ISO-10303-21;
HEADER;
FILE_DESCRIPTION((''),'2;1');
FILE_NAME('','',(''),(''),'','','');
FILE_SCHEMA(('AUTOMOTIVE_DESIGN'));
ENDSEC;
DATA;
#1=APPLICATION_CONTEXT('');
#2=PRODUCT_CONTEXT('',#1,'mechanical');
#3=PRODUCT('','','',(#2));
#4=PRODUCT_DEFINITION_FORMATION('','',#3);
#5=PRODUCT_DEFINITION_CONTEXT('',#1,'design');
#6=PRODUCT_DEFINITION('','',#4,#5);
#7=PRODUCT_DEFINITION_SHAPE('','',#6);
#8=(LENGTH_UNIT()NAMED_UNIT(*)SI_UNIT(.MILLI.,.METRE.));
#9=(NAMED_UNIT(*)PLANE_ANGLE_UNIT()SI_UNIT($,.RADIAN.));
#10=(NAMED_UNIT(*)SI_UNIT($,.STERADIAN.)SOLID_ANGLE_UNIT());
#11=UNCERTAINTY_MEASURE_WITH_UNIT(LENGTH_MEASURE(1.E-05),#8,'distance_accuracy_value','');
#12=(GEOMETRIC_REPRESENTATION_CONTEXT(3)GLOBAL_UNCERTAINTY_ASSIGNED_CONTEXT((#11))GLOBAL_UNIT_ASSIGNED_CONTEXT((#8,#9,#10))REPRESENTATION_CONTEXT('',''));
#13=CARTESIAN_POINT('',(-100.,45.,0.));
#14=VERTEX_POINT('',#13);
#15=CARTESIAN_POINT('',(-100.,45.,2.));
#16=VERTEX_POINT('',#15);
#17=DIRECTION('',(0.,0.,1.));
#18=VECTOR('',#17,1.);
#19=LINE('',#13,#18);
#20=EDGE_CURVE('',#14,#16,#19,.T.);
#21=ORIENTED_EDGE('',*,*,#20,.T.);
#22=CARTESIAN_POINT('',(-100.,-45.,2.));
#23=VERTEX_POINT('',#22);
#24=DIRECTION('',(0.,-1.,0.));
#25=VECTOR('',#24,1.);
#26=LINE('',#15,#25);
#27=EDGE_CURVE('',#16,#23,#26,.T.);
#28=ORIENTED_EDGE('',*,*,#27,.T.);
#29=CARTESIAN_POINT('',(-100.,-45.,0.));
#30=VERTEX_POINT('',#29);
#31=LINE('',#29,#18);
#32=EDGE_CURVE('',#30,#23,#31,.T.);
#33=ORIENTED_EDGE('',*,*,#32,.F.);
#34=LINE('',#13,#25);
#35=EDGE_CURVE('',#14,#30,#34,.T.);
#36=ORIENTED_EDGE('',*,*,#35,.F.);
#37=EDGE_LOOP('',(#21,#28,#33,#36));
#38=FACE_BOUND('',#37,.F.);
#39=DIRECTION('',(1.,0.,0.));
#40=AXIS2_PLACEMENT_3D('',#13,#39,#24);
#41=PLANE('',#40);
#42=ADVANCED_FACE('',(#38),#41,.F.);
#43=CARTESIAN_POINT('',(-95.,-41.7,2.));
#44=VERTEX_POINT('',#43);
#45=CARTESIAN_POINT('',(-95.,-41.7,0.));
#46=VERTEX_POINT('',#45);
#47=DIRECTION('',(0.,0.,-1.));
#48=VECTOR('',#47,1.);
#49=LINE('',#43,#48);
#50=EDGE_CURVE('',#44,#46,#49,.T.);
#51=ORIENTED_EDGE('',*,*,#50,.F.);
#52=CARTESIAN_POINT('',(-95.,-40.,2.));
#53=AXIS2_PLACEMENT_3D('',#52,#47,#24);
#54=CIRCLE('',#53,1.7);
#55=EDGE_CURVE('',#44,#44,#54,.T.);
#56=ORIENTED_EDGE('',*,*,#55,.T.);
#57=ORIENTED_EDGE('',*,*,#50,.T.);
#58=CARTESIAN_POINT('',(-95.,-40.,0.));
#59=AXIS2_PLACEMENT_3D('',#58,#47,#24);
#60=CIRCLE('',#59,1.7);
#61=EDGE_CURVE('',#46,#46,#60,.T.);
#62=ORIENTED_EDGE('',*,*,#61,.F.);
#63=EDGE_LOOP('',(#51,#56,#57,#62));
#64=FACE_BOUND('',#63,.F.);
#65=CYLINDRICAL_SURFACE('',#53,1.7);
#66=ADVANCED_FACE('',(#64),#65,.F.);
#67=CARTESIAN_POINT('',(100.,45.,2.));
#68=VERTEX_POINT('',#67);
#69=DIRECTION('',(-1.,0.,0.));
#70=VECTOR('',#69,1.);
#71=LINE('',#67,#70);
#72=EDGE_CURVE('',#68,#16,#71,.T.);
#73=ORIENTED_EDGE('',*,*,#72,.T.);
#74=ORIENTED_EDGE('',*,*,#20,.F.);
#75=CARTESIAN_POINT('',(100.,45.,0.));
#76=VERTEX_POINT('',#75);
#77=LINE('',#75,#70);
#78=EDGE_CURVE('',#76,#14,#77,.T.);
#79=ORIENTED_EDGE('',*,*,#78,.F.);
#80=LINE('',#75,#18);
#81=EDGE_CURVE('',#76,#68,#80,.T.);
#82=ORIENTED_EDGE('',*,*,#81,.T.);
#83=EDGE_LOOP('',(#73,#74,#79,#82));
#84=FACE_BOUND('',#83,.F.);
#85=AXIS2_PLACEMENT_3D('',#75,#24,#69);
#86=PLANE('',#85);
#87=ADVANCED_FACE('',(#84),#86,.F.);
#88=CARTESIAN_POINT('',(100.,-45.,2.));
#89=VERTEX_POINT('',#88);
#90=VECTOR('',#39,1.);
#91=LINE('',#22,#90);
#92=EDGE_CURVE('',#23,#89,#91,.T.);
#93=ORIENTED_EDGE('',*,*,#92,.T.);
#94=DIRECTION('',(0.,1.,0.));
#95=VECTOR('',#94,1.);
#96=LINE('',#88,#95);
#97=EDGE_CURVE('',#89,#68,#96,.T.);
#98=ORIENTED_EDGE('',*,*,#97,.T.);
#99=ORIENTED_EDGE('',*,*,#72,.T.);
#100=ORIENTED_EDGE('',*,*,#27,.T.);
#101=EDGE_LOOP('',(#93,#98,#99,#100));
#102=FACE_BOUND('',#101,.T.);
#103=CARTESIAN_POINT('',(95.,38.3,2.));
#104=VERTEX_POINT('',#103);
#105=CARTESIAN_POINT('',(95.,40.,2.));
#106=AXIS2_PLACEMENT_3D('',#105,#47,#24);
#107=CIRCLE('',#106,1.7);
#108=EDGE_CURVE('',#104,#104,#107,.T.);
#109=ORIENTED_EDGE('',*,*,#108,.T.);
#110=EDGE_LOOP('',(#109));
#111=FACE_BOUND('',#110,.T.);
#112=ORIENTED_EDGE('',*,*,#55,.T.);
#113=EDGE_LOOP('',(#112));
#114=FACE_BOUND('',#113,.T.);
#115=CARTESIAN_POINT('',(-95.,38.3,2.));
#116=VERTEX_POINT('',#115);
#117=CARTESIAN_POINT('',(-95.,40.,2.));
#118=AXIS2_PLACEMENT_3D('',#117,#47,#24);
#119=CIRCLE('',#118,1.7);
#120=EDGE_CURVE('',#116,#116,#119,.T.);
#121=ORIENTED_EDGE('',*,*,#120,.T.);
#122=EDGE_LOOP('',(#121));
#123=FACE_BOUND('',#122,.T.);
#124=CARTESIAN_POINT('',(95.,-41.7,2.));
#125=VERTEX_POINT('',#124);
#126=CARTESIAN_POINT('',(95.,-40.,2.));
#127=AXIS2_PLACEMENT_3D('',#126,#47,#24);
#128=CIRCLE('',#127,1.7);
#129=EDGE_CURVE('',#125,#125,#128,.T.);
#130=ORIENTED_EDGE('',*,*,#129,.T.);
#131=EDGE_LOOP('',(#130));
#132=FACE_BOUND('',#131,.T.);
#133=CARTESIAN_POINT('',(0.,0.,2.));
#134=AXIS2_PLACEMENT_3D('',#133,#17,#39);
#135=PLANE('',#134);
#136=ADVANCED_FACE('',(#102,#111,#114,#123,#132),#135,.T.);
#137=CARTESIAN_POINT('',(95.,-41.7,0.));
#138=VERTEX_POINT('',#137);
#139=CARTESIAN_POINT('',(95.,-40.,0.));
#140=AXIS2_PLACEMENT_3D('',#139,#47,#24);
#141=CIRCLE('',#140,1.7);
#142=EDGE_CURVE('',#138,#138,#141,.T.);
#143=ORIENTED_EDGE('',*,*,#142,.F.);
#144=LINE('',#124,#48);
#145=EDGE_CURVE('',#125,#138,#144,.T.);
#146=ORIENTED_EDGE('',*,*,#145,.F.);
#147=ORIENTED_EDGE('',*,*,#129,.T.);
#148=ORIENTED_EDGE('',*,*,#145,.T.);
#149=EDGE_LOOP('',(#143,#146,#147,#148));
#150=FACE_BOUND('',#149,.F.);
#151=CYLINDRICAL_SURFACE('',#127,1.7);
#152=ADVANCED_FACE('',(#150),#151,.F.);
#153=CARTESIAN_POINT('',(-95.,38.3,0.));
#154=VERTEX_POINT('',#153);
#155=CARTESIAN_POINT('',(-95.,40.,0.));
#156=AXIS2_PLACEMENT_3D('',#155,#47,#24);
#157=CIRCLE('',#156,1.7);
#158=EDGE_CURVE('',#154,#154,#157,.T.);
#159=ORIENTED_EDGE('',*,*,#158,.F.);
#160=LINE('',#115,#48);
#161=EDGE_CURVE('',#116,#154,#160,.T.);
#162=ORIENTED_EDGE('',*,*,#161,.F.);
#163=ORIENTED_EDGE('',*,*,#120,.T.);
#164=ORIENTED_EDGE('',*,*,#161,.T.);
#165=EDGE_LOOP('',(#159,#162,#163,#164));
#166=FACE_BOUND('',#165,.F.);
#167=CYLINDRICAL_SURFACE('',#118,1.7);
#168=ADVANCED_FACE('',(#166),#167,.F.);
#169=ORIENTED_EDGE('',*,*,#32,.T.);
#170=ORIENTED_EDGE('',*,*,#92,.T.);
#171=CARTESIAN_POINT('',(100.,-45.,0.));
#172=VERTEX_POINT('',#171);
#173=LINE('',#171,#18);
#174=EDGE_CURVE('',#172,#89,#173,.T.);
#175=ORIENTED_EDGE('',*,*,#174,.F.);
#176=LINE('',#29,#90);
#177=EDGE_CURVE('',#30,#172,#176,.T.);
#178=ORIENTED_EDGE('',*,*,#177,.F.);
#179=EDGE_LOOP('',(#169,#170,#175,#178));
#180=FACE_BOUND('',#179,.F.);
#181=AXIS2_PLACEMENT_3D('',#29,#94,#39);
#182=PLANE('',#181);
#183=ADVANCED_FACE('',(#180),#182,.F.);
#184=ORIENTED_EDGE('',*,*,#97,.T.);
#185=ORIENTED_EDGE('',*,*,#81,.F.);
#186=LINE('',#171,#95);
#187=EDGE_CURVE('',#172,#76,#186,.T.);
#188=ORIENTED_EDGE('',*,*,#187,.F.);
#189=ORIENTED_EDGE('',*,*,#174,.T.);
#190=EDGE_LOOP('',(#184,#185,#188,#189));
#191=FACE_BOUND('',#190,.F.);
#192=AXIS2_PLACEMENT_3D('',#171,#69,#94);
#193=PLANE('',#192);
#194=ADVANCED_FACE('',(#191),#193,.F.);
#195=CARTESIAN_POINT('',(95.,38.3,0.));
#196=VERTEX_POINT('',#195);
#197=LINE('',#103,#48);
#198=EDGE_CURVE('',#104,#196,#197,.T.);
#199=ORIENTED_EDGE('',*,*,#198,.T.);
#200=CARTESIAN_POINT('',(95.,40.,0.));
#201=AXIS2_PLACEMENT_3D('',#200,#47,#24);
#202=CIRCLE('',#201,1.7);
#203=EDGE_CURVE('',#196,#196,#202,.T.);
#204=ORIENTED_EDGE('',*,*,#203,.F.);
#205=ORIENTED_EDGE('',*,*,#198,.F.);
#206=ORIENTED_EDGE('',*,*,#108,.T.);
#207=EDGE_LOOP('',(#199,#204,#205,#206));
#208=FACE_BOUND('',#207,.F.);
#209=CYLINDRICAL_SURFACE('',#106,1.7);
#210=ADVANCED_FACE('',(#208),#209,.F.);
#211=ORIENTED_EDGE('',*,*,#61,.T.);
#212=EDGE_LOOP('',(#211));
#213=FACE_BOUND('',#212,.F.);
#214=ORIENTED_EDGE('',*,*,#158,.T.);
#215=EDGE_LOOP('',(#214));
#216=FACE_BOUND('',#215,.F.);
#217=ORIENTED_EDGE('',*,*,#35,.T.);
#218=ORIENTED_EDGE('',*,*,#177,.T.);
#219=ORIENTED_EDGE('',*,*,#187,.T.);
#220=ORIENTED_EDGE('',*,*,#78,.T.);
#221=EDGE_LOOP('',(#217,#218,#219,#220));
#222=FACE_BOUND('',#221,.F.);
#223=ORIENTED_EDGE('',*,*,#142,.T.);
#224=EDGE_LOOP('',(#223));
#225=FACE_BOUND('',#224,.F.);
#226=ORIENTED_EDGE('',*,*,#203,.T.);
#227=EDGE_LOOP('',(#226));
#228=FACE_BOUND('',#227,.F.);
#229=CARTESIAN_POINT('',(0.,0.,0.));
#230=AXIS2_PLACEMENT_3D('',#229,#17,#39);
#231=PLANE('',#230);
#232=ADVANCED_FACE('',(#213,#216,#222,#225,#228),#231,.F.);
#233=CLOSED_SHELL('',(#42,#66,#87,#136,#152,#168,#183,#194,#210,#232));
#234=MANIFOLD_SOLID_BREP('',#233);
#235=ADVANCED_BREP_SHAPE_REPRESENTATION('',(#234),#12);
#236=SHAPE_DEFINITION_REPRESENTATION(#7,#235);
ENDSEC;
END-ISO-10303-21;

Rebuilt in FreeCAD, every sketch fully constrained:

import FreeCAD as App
import Part
import Sketcher
from FreeCAD import Vector

doc = App.newDocument("Part")
params = doc.addObject("Spreadsheet::Sheet", "Params")
for row, (alias, value) in enumerate([
    ("sketch1_width", "200 mm"),
    ("sketch1_height", "90 mm"),
    ("pad1_length", "2 mm"),
    ("sketch2_diameter", "3.4 mm"),
    ("hole_diameter", "3.4 mm"),
], start=1):
    params.set(f"A{row}", alias)
    params.set(f"B{row}", "=" + value)
    params.setAlias(f"B{row}", alias)

body = doc.addObject("PartDesign::Body", "Body")

# Sketch on XY plane
sketch1 = body.newObject("Sketcher::SketchObject", "Sketch")
sketch1.AttachmentSupport = (doc.getObject("XY_Plane"), [""])
sketch1.MapMode = "FlatFace"
sketch1.addGeometry([
    Part.LineSegment(Vector(-100, 45, 0), Vector(-100, -45, 0)),
    Part.LineSegment(Vector(-100, -45, 0), Vector(100, -45, 0)),
    Part.LineSegment(Vector(100, -45, 0), Vector(100, 45, 0)),
    Part.LineSegment(Vector(100, 45, 0), Vector(-100, 45, 0)),
], False)
sketch1.addConstraint([
    Sketcher.Constraint("Coincident", 0, 2, 1, 1),
    Sketcher.Constraint("Coincident", 1, 2, 2, 1),
    Sketcher.Constraint("Coincident", 2, 2, 3, 1),
    Sketcher.Constraint("Coincident", 3, 2, 0, 1),
    Sketcher.Constraint("Vertical", 0),
    Sketcher.Constraint("Horizontal", 1),
    Sketcher.Constraint("Vertical", 2),
    Sketcher.Constraint("Horizontal", 3),
    Sketcher.Constraint("Symmetric", 0, 2, 2, 2, -1, 1),
    Sketcher.Constraint("DistanceX", 1, 1, 1, 2, 200.0),
    Sketcher.Constraint("DistanceY", 0, 2, 0, 1, 90.0),
])
sketch1.setExpression("Constraints[9]", "Params.sketch1_width")
sketch1.setExpression("Constraints[10]", "Params.sketch1_height")
pad1 = body.newObject("PartDesign::Pad", "Pad")
pad1.Profile = sketch1
pad1.setExpression("Length", "Params.pad1_length")

# Sketch on XY plane
sketch2 = body.newObject("Sketcher::SketchObject", "Sketch001")
sketch2.AttachmentSupport = (doc.getObject("XY_Plane"), [""])
sketch2.MapMode = "FlatFace"
sketch2.AttachmentOffset = App.Placement(Vector(0, 0, 2), App.Rotation())
sketch2.addGeometry([
    Part.Circle(Vector(-95, -40, 0), Vector(0, 0, 1), 1.7),
    Part.Circle(Vector(95, -40, 0), Vector(0, 0, 1), 1.7),
    Part.Circle(Vector(-95, 40, 0), Vector(0, 0, 1), 1.7),
    Part.Circle(Vector(95, 40, 0), Vector(0, 0, 1), 1.7),
], False)
sketch2.addConstraint([
    Sketcher.Constraint("Equal", 0, 1),
    Sketcher.Constraint("Equal", 1, 2),
    Sketcher.Constraint("Equal", 2, 3),
    Sketcher.Constraint("Symmetric", 1, 3, 2, 3, -1, 1),
    Sketcher.Constraint("Symmetric", 0, 3, 3, 3, -1, 1),
    Sketcher.Constraint("Symmetric", 0, 3, 1, 3, -2),
    Sketcher.Constraint("Diameter", 0, 3.4),
    Sketcher.Constraint("DistanceX", 0, 3, -1, 1, 95.0),
    Sketcher.Constraint("DistanceY", 0, 3, -1, 1, 40.0),
])
sketch2.setExpression("Constraints[6]", "Params.sketch2_diameter")
doc.recompute()
hole = body.newObject("PartDesign::Hole", "Hole")
hole.Profile = sketch2
hole.ThreadType = "None"
hole.setExpression("Diameter", "Params.hole_diameter")
hole.DepthType = "ThroughAll"

doc.recompute()
